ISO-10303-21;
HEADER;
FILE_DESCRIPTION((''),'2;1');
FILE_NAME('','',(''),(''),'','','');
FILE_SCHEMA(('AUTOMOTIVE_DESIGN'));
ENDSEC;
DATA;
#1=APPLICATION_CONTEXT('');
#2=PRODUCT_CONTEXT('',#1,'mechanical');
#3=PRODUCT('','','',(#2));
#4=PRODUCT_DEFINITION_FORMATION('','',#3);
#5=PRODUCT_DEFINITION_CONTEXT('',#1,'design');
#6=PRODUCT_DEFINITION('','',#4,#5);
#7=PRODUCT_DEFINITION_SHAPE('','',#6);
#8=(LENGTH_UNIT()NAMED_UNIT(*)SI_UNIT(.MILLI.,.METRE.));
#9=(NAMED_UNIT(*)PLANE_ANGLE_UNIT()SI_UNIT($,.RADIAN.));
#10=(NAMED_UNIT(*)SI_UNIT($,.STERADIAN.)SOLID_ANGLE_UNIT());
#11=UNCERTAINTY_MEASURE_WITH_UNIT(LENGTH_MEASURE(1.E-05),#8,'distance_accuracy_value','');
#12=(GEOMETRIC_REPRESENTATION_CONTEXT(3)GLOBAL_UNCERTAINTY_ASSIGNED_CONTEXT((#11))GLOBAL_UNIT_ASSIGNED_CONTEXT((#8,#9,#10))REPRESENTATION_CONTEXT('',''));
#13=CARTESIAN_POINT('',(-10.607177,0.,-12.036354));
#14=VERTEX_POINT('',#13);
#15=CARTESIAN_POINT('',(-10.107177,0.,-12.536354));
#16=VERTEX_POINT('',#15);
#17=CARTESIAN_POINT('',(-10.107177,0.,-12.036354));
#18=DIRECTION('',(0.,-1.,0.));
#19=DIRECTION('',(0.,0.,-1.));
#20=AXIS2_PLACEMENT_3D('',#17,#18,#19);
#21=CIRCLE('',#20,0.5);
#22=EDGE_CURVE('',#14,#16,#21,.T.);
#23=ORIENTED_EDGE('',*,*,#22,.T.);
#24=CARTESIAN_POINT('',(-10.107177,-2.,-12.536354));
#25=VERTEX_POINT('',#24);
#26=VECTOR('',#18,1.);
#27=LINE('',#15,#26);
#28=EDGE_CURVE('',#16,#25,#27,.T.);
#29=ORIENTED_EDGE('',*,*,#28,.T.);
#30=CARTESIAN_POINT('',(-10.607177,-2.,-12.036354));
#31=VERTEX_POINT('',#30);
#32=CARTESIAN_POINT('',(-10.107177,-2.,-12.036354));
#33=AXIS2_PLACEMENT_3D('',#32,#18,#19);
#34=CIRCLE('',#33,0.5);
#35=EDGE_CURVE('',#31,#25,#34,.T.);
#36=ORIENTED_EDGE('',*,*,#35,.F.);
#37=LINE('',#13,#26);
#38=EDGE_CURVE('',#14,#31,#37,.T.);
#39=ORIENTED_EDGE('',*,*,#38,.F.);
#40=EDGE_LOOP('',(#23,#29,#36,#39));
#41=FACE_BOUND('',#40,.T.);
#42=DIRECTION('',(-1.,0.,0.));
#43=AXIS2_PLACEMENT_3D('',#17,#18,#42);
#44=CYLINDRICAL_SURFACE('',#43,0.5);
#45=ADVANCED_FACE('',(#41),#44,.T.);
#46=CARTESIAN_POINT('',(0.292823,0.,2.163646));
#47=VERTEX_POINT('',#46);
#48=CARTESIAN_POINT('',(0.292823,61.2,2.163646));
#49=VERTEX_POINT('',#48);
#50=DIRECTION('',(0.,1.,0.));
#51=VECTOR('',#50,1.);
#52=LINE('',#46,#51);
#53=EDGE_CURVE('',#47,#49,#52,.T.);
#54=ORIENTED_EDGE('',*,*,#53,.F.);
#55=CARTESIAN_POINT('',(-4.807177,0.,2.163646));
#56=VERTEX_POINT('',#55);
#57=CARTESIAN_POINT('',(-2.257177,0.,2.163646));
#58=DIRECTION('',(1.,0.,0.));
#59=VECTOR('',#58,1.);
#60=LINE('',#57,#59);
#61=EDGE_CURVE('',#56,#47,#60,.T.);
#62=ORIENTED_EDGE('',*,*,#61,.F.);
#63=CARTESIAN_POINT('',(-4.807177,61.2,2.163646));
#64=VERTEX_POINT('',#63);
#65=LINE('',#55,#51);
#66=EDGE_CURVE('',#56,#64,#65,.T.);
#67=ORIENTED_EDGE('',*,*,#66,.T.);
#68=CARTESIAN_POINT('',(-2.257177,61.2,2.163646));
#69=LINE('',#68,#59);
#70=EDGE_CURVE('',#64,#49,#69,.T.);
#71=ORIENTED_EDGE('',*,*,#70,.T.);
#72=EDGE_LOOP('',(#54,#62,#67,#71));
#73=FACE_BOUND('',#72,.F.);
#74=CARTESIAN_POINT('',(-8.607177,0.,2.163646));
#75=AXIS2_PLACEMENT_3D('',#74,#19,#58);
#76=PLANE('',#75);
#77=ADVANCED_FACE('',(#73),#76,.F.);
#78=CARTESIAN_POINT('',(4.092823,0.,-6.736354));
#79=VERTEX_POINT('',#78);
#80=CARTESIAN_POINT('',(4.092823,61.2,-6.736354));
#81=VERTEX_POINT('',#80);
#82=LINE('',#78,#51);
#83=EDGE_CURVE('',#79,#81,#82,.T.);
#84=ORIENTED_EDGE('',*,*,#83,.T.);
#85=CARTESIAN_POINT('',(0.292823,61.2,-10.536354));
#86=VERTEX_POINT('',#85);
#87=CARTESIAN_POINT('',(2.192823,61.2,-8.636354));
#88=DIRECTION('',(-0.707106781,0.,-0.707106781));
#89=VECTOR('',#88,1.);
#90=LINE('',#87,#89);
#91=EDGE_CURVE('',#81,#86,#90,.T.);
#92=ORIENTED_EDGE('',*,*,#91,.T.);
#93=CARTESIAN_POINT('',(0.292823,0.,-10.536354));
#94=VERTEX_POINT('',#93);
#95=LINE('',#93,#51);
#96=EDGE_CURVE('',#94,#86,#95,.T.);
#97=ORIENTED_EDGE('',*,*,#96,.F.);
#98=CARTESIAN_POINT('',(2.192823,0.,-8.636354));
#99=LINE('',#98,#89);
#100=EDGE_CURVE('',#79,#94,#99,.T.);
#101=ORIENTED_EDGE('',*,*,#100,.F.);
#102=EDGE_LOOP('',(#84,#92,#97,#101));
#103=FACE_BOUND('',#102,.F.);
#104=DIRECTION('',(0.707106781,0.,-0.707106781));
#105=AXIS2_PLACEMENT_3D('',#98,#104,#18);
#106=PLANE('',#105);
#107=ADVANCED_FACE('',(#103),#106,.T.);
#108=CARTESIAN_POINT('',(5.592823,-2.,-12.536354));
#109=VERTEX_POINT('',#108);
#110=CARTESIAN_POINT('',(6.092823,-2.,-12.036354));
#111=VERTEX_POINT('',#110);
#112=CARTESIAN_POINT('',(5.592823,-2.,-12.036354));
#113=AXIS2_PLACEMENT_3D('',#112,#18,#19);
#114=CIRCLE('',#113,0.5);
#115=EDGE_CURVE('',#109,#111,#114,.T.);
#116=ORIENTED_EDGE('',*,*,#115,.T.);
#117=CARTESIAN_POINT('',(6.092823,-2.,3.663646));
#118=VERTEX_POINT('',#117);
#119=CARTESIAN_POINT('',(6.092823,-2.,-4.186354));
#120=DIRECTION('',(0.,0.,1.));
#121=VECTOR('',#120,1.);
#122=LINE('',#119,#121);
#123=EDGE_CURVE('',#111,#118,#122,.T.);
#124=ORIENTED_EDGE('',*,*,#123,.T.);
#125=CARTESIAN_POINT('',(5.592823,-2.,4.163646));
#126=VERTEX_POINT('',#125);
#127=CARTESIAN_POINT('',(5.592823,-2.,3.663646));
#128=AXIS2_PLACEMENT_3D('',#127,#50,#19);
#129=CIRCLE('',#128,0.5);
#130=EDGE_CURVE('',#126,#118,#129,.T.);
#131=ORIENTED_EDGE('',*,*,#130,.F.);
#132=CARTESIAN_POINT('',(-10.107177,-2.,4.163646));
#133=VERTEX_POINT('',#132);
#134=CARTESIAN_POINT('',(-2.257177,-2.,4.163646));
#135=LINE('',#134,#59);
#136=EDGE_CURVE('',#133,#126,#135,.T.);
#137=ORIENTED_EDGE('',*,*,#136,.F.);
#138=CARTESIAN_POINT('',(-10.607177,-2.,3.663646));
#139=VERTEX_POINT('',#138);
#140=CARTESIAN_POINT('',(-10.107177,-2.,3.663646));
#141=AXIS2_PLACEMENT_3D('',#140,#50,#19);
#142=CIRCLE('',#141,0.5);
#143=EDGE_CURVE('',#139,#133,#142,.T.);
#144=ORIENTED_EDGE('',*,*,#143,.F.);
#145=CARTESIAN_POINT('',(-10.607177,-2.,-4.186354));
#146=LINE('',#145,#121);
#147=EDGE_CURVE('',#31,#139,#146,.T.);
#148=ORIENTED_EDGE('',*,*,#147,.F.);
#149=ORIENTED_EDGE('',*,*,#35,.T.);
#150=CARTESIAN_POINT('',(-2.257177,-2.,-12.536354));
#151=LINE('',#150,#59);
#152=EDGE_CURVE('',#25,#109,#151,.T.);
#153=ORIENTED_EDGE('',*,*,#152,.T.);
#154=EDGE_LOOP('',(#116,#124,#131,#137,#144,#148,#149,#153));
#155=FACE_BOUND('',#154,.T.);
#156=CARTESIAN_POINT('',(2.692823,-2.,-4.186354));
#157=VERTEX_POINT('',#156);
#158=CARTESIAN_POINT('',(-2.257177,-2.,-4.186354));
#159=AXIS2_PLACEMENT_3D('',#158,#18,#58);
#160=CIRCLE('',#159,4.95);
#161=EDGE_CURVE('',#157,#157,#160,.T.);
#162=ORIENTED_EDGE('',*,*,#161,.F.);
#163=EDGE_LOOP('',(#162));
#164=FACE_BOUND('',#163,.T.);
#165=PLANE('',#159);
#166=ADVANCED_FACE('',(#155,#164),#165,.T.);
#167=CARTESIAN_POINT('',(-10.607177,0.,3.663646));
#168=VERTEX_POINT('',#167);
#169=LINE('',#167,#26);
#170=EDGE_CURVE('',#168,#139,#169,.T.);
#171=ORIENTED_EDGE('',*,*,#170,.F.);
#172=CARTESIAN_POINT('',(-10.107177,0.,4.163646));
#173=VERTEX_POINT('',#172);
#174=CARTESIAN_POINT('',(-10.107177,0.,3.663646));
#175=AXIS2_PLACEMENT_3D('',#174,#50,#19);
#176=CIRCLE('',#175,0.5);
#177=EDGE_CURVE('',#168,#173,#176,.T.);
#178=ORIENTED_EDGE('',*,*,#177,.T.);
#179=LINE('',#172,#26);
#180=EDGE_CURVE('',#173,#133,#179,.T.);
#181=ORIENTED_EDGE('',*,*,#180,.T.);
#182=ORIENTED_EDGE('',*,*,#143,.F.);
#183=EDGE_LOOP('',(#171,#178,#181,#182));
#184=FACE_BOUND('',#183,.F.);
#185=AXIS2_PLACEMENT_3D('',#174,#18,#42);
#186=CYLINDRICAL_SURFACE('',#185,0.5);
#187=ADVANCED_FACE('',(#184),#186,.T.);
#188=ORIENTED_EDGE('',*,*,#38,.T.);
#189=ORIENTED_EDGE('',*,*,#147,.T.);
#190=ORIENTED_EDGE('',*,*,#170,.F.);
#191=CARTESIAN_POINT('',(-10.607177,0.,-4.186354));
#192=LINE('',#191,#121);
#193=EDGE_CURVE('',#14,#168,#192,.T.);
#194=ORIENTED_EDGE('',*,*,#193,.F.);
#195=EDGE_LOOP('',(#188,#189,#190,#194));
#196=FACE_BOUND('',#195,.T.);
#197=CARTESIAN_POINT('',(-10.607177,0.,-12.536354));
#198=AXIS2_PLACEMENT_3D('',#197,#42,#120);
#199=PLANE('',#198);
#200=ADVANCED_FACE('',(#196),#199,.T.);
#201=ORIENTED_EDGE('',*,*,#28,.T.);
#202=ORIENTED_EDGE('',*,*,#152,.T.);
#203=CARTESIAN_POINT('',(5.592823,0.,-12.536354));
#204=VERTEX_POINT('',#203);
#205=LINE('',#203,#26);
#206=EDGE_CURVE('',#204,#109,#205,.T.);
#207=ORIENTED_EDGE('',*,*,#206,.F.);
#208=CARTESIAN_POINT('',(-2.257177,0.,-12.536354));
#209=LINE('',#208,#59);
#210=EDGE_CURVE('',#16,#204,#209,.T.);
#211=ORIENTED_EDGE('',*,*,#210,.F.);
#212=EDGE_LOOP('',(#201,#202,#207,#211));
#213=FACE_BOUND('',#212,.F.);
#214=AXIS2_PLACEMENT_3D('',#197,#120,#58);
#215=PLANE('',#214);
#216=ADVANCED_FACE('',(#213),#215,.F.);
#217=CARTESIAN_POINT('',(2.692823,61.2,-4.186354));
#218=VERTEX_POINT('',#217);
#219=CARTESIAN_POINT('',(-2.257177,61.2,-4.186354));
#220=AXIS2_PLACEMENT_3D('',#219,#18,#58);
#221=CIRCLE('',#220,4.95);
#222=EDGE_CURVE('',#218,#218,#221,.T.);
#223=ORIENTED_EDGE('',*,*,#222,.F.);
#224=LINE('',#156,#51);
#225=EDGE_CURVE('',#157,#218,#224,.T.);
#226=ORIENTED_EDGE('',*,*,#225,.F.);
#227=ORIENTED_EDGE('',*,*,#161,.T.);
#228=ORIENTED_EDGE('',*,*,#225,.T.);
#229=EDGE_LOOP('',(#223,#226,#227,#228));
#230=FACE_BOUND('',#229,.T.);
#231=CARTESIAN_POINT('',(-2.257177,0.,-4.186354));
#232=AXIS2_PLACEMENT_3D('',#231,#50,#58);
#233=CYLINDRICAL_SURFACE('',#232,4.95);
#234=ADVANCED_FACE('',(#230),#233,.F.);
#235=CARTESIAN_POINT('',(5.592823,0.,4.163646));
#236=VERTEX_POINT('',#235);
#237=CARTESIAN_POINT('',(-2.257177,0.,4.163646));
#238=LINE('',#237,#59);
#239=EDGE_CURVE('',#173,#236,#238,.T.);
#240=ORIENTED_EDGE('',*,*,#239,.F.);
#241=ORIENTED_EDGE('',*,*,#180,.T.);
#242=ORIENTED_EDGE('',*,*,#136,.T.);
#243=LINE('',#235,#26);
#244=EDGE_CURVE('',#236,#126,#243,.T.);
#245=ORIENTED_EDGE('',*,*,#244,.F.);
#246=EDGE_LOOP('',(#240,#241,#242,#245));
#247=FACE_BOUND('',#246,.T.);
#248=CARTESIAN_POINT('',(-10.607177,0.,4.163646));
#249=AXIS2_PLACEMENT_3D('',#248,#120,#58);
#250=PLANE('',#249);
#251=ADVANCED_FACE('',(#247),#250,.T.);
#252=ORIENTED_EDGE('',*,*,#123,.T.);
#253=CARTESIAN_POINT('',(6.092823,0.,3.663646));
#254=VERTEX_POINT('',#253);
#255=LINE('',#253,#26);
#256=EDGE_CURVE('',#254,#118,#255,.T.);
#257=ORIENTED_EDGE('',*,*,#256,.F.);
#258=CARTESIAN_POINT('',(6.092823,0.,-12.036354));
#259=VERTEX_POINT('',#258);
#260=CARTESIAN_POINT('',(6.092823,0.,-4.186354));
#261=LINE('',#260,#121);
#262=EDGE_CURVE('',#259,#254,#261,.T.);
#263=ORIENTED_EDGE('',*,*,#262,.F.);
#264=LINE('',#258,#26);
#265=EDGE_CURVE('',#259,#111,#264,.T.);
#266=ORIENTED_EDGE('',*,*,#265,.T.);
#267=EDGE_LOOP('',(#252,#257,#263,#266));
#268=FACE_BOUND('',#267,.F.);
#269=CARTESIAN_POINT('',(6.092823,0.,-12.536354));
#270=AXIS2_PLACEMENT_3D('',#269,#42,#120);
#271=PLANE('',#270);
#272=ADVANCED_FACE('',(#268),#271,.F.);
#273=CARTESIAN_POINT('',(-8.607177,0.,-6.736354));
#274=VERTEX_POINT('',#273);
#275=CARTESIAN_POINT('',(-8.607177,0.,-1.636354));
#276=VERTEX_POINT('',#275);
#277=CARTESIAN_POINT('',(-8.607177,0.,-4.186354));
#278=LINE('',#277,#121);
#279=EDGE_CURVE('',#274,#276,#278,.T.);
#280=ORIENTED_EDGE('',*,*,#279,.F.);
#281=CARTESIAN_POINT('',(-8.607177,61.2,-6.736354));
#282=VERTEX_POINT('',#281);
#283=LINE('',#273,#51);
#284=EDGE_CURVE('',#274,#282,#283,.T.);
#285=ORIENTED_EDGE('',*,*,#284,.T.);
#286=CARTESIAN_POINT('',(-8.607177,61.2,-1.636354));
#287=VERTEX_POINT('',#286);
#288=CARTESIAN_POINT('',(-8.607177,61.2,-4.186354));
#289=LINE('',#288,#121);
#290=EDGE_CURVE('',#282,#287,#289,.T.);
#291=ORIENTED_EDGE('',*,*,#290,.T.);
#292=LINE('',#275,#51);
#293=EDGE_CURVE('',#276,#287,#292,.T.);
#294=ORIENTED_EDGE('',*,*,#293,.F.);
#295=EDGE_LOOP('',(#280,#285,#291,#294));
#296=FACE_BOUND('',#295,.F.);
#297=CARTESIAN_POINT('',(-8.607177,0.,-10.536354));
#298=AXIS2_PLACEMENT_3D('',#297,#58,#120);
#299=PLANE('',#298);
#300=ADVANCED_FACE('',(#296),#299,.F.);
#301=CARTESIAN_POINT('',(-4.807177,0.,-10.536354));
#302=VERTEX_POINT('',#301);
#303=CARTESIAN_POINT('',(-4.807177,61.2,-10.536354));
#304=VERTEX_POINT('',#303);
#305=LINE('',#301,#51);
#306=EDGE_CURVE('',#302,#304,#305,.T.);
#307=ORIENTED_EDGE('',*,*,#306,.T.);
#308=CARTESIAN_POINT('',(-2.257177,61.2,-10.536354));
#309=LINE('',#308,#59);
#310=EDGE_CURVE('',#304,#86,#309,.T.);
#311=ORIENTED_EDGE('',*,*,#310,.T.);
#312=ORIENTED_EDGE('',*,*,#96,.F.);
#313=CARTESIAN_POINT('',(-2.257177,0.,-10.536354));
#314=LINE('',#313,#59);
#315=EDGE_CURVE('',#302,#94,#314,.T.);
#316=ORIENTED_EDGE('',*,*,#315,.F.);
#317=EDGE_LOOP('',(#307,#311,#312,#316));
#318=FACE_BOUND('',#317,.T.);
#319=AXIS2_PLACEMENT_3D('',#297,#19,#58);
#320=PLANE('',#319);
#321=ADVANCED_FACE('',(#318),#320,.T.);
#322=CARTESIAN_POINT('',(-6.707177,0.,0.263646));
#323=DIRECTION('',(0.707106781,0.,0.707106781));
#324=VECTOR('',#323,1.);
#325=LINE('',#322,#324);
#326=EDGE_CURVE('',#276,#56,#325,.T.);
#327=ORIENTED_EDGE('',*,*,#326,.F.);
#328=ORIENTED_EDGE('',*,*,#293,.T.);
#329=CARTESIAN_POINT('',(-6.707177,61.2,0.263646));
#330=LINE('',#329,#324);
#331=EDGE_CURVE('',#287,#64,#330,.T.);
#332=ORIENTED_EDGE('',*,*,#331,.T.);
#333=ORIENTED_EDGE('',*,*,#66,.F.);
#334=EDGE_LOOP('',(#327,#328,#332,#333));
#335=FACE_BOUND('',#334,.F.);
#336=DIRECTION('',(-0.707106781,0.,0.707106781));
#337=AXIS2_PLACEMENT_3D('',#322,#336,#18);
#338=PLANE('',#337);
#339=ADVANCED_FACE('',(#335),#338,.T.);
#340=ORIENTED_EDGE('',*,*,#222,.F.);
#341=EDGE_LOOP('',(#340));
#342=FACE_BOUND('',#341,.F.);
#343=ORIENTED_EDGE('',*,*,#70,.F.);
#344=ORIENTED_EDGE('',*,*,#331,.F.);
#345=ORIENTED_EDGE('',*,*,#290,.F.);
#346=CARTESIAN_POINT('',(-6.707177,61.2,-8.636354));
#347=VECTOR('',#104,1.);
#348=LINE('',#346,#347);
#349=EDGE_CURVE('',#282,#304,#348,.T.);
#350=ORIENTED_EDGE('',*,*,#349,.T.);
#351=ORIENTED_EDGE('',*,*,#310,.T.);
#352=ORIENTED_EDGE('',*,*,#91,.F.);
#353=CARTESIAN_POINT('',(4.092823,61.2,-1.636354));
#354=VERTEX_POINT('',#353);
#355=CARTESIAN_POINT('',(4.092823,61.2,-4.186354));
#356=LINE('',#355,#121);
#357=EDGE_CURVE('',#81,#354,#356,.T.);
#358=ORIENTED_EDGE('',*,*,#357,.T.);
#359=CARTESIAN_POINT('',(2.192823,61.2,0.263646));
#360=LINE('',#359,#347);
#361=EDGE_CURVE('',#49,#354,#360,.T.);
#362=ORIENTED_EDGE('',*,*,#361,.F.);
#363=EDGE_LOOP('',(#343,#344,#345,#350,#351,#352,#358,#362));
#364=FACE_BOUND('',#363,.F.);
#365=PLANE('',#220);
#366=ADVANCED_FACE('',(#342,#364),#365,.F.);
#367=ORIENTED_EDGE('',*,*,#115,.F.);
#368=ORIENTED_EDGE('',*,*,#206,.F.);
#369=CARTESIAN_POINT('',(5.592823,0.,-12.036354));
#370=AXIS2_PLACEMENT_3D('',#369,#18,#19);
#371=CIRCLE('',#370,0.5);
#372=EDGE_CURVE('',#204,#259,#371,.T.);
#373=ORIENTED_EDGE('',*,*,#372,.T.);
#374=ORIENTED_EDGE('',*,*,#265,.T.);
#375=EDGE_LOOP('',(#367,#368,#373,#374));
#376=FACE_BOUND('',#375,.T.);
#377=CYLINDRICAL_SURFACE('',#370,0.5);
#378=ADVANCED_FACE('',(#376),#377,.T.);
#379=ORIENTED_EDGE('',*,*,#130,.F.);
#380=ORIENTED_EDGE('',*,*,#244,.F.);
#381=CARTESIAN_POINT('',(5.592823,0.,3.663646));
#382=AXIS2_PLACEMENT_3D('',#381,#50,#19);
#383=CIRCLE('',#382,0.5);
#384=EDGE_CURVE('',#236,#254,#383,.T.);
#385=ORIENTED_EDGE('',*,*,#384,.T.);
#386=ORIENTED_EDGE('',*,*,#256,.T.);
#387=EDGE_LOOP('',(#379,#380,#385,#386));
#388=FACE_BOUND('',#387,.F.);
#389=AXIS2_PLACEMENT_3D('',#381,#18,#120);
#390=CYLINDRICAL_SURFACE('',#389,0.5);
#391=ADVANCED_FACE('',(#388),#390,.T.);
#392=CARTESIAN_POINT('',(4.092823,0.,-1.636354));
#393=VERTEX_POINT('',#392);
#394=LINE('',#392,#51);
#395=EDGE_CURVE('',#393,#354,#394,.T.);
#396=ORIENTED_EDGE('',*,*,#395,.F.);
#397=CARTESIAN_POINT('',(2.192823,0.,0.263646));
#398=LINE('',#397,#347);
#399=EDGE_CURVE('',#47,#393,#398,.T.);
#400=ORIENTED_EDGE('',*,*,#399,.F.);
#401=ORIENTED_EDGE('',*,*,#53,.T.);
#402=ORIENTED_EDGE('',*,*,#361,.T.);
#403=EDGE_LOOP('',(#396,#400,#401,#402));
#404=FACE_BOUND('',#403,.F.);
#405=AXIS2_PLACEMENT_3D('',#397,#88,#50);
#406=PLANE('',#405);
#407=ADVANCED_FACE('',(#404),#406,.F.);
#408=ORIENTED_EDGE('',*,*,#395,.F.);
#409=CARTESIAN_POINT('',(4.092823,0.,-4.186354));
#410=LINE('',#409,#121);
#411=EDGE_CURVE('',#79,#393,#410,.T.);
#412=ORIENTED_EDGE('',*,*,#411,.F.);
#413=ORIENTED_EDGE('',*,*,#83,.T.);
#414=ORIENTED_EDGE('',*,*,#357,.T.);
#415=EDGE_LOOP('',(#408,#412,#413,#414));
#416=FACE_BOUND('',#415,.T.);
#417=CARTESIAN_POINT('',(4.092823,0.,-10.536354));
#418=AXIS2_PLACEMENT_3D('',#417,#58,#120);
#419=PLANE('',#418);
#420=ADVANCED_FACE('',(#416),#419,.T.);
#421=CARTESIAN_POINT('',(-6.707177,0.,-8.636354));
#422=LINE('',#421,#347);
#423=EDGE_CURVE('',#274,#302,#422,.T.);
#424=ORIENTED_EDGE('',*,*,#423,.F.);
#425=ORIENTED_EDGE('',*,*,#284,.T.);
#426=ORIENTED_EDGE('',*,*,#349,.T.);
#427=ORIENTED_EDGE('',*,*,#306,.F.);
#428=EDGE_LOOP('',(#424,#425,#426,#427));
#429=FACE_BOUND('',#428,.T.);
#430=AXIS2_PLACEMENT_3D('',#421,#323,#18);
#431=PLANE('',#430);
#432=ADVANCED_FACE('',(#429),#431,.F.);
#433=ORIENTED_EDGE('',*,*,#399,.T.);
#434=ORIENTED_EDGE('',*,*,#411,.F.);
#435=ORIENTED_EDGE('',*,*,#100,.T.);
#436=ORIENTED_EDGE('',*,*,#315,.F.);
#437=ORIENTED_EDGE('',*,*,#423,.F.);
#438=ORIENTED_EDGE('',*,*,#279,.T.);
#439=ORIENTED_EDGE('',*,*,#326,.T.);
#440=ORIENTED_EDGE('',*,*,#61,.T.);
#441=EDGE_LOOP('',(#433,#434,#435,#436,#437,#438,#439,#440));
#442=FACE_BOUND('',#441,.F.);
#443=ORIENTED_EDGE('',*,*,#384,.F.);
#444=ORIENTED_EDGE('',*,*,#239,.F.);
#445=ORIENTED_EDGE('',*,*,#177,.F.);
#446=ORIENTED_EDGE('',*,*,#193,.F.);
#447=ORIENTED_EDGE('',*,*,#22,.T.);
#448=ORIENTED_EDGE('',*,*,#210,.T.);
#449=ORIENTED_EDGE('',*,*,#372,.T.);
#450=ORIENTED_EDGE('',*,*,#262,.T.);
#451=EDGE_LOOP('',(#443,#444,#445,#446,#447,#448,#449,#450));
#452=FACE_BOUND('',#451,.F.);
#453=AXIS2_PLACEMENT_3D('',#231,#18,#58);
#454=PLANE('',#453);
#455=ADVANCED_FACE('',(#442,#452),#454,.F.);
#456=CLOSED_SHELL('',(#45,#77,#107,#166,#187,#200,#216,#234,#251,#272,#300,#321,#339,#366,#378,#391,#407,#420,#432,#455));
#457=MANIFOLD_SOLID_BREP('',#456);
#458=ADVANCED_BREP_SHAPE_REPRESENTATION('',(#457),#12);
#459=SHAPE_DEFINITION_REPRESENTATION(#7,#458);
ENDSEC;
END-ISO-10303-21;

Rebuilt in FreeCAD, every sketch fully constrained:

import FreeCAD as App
import Part
import Sketcher
Q = App.Units.Quantity


def edges_at(feature, points):
    """Names of the edges that pass closest to the given points."""
    edges = feature.Shape.Edges
    near = lambda p: min(range(len(edges)), key=lambda i: edges[i].distToShape(Part.Vertex(*p))[0])
    return sorted({f"Edge{near(p) + 1}" for p in points})

doc = App.newDocument("Part")
body = doc.addObject("PartDesign::Body", "Body")

sketch1 = body.newObject("Sketcher::SketchObject", "Sketch")
sketch1.AttachmentSupport = (doc.getObject("XZ_Plane"), [""])
sketch1.MapMode = "FlatFace"
sketch1.addGeometry([
    Part.LineSegment(App.Vector(-10.6, 4.2, 0), App.Vector(-10.6, -12.5, 0)),
    Part.LineSegment(App.Vector(-10.6, -12.5, 0), App.Vector(6.1, -12.5, 0)),
    Part.LineSegment(App.Vector(6.1, -12.5, 0), App.Vector(6.1, 4.2, 0)),
    Part.LineSegment(App.Vector(6.1, 4.2, 0), App.Vector(-10.6, 4.2, 0)),
    Part.Circle(App.Vector(-2.3, -4.2, 0), App.Vector(0, 0, 1), 5),
], False)
sketch1.addConstraint([
    Sketcher.Constraint("Coincident", 0, 2, 1, 1),
    Sketcher.Constraint("Coincident", 1, 2, 2, 1),
    Sketcher.Constraint("Coincident", 2, 2, 3, 1),
    Sketcher.Constraint("Coincident", 3, 2, 0, 1),
    Sketcher.Constraint("Vertical", 0),
    Sketcher.Constraint("Horizontal", 1),
    Sketcher.Constraint("Vertical", 2),
    Sketcher.Constraint("Horizontal", 3),
    Sketcher.Constraint("Equal", 3, 0),
    Sketcher.Constraint("Diameter", 4, Q("9.9 mm")),
    Sketcher.Constraint("DistanceX", 1, 1, 1, 2, Q("16.7 mm")),
    Sketcher.Constraint("DistanceX", 0, 2, 4, 3, Q("8.35 mm")),
    Sketcher.Constraint("DistanceY", 0, 2, 4, 3, Q("8.35 mm")),
    Sketcher.Constraint("DistanceX", 4, 3, -1, 1, Q("2.257177 mm")),
    Sketcher.Constraint("DistanceY", 4, 3, -1, 1, Q("4.186354 mm")),
])
pad1 = body.newObject("PartDesign::Pad", "Pad")
pad1.Profile = sketch1
pad1.Length = 2

sketch2 = body.newObject("Sketcher::SketchObject", "Sketch001")
sketch2.AttachmentSupport = (doc.getObject("XZ_Plane"), [""])
sketch2.MapMode = "FlatFace"
sketch2.addGeometry([
    Part.LineSegment(App.Vector(-8.6, 2.2, 0), App.Vector(-8.6, -10.5, 0)),
    Part.LineSegment(App.Vector(-8.6, -10.5, 0), App.Vector(4.1, -10.5, 0)),
    Part.LineSegment(App.Vector(4.1, -10.5, 0), App.Vector(4.1, 2.2, 0)),
    Part.LineSegment(App.Vector(4.1, 2.2, 0), App.Vector(-8.6, 2.2, 0)),
    Part.Circle(App.Vector(-2.3, -4.2, 0), App.Vector(0, 0, 1), 5),
], False)
sketch2.addConstraint([
    Sketcher.Constraint("Coincident", 0, 2, 1, 1),
    Sketcher.Constraint("Coincident", 1, 2, 2, 1),
    Sketcher.Constraint("Coincident", 2, 2, 3, 1),
    Sketcher.Constraint("Coincident", 3, 2, 0, 1),
    Sketcher.Constraint("Vertical", 0),
    Sketcher.Constraint("Horizontal", 1),
    Sketcher.Constraint("Vertical", 2),
    Sketcher.Constraint("Horizontal", 3),
    Sketcher.Constraint("Equal", 3, 0),
    Sketcher.Constraint("Diameter", 4, Q("9.9 mm")),
    Sketcher.Constraint("DistanceX", 1, 1, 1, 2, Q("12.7 mm")),
    Sketcher.Constraint("DistanceX", 0, 2, 4, 3, Q("6.35 mm")),
    Sketcher.Constraint("DistanceY", 0, 2, 4, 3, Q("6.35 mm")),
    Sketcher.Constraint("DistanceX", 4, 3, -1, 1, Q("2.257177 mm")),
    Sketcher.Constraint("DistanceY", 4, 3, -1, 1, Q("4.186354 mm")),
])
pad2 = body.newObject("PartDesign::Pad", "Pad001")
pad2.Profile = sketch2
pad2.Length = 61.2
pad2.Reversed = True
doc.recompute()

fillet = body.newObject("PartDesign::Fillet", "Fillet")
fillet.Base = (pad2, edges_at(pad2, [
    (-10.607, -1, 4.164),
    (6.093, -1, 4.164),
    (6.093, -1, -12.536),
    (-10.607, -1, -12.536),
]))
fillet.Radius = 0.5
doc.recompute()

chamfer = body.newObject("PartDesign::Chamfer", "Chamfer")
chamfer.Base = (fillet, edges_at(fillet, [
    (-8.607, 30.6, -10.536),
    (-8.607, 30.6, 2.164),
    (4.093, 30.6, -10.536),
    (4.093, 30.6, 2.164),
]))
chamfer.Size = 3.8

doc.recompute()
